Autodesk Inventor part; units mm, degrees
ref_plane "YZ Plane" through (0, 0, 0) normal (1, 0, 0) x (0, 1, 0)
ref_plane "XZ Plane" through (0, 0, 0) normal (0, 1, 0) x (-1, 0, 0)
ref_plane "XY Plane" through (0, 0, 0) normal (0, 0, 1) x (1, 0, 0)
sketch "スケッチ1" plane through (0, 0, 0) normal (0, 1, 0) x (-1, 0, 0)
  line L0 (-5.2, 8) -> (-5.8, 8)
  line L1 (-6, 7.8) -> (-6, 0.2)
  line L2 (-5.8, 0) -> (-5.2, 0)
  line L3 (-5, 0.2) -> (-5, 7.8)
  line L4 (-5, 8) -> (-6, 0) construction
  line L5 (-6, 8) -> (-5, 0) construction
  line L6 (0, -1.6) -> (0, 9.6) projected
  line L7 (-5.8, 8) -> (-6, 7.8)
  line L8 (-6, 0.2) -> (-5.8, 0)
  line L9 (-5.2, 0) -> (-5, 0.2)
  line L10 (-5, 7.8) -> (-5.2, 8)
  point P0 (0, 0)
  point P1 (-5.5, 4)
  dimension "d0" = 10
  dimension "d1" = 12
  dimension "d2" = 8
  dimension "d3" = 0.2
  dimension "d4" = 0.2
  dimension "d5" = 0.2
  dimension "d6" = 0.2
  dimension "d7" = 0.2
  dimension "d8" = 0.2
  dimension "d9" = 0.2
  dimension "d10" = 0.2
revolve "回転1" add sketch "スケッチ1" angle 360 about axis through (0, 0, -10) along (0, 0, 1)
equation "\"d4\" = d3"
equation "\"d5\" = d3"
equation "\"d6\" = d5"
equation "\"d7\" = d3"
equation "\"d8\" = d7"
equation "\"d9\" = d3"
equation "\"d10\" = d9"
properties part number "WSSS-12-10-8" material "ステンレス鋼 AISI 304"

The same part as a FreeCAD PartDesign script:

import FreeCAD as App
import Part
import Sketcher


def add_polygon(sketch, points):
    """Adds a closed chain of lines whose ends are joined by coincident constraints."""
    first, n = sketch.GeometryCount, len(points)
    for a, b in zip(points, points[1:] + points[:1]):
        sketch.addGeometry(Part.LineSegment(App.Vector(*a, 0), App.Vector(*b, 0)), False)
    for i in range(n):
        sketch.addConstraint(Sketcher.Constraint("Coincident", first + i, 2, first + (i + 1) % n, 1))

doc = App.newDocument("Part")
body = doc.addObject("PartDesign::Body", "Body")

# Sketch on XZ plane
sketch1 = body.newObject("Sketcher::SketchObject", "Sketch")
sketch1.AttachmentSupport = (doc.getObject("XZ_Plane"), [""])
sketch1.MapMode = "FlatFace"
add_polygon(sketch1, [(5, 7.8), (5.2, 8), (5.8, 8), (6, 7.8), (6, 0.2), (5.8, 0), (5.2, 0), (5, 0.2)])  # lines 0-7
sketch1.addConstraint(Sketcher.Constraint("Horizontal", 1))
sketch1.addConstraint(Sketcher.Constraint("Vertical", 3))
sketch1.addConstraint(Sketcher.Constraint("Horizontal", 5))
sketch1.addConstraint(Sketcher.Constraint("Vertical", 7))
sketch1.addConstraint(Sketcher.Constraint("PointOnObject", 4, 2, -1))
sketch1.addConstraint(Sketcher.Constraint("Perpendicular", 0, 2))
sketch1.addConstraint(Sketcher.Constraint("Perpendicular", 2, 4))
sketch1.addConstraint(Sketcher.Constraint("Perpendicular", 4, 6))
sketch1.addConstraint(Sketcher.Constraint("Horizontal", 3, 2, 6, 2))
sketch1.addConstraint(Sketcher.Constraint("Horizontal", 2, 2, 7, 2))
sketch1.addConstraint(Sketcher.Constraint("Vertical", 1, 2, 4, 2))
sketch1.addConstraint(Sketcher.Constraint("Vertical", 0, 2, 5, 2))
sketch1.addConstraint(Sketcher.Constraint("DistanceY", -1, 1, 0, 2, 8.0))
sketch1.addConstraint(Sketcher.Constraint("DistanceY", -1, 1, 3, 2, 0.2))
sketch1.addConstraint(Sketcher.Constraint("DistanceX", 1, 1, 1, 2, 0.6))
sketch1.addConstraint(Sketcher.Constraint("DistanceX", -1, 1, 2, 2, 6.0))
revolution = body.newObject("PartDesign::Revolution", "Revolution")
revolution.Profile = sketch1
revolution.ReferenceAxis = (sketch1, ["V_Axis"])
revolution.Angle = 360

doc.recompute()
